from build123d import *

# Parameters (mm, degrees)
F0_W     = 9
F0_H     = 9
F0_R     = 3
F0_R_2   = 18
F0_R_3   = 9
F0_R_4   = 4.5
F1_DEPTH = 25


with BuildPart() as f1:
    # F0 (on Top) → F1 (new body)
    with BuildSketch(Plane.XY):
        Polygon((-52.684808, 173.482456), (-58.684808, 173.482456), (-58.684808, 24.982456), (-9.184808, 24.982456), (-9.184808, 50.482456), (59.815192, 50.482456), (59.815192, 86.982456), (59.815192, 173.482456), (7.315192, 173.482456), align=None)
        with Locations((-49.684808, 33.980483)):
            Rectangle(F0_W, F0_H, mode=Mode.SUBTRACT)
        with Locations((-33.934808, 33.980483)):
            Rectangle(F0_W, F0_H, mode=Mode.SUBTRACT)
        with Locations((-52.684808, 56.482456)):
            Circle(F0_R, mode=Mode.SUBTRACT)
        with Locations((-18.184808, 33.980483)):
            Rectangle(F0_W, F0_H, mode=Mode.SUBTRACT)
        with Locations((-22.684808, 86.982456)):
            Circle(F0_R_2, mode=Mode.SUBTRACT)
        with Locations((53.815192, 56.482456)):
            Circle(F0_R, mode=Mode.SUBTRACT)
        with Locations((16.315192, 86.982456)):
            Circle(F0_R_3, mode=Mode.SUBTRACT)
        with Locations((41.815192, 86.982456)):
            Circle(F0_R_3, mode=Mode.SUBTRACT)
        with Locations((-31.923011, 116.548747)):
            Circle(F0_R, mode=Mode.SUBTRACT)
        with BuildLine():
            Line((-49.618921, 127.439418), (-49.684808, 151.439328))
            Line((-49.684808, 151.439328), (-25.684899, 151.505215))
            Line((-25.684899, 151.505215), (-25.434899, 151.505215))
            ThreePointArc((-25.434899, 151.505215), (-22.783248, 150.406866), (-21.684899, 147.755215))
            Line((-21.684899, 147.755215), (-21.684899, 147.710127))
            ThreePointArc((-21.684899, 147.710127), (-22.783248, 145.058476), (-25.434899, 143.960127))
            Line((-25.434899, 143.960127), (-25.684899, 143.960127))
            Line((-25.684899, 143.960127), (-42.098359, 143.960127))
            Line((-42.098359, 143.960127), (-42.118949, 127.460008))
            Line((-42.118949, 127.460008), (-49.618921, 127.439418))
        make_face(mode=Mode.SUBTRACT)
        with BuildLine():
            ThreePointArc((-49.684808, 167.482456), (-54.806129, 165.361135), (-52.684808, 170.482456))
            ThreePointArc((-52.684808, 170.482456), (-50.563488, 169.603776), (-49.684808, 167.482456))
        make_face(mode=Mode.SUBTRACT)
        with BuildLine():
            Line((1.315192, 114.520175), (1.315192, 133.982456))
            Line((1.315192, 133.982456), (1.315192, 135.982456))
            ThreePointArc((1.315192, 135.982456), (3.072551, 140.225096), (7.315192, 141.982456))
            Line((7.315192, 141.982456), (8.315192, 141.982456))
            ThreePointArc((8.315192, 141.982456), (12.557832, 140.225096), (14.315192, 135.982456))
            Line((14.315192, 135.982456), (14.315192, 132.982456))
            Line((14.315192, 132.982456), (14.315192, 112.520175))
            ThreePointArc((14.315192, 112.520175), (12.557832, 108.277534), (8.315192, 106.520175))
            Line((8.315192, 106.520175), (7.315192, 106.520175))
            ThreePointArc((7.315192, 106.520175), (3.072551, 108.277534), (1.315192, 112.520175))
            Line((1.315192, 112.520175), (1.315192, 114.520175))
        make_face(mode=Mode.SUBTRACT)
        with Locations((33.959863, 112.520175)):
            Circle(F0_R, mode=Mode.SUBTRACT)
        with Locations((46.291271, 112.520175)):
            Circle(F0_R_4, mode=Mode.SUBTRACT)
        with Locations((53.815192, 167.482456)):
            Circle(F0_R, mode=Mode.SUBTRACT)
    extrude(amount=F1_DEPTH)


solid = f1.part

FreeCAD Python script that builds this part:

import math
import FreeCAD as App
import Part
import Sketcher
from FreeCAD import Vector
Q = App.Units.Quantity

doc = App.newDocument("Part")
body = doc.addObject("PartDesign::Body", "Body")

# Sketch on XY plane
sketch1 = body.newObject("Sketcher::SketchObject", "Sketch")
sketch1.AttachmentSupport = (doc.getObject("XY_Plane"), [""])
sketch1.MapMode = "FlatFace"
sketch1.addGeometry(Part.LineSegment(Vector(-58.684808, 173.482456, 0), Vector(-58.684808, 24.982456, 0)), False)
sketch1.addGeometry(Part.LineSegment(Vector(-58.684808, 24.982456, 0), Vector(-9.184808, 24.982456, 0)), False)
sketch1.addGeometry(Part.LineSegment(Vector(-9.184808, 24.982456, 0), Vector(-9.184808, 50.482456, 0)), False)
sketch1.addGeometry(Part.LineSegment(Vector(-9.184808, 50.482456, 0), Vector(59.815192, 50.482456, 0)), False)
sketch1.addGeometry(Part.LineSegment(Vector(59.815192, 50.482456, 0), Vector(59.815192, 173.482456, 0)), False)
sketch1.addGeometry(Part.LineSegment(Vector(59.815192, 173.482456, 0), Vector(-58.684808, 173.482456, 0)), False)
sketch1.addGeometry(Part.LineSegment(Vector(-45.184808, 29.480483, 0), Vector(-54.184808, 29.480483, 0)), False)
sketch1.addGeometry(Part.LineSegment(Vector(-54.184808, 29.480483, 0), Vector(-54.184808, 38.480483, 0)), False)
sketch1.addGeometry(Part.LineSegment(Vector(-54.184808, 38.480483, 0), Vector(-45.184808, 38.480483, 0)), False)
sketch1.addGeometry(Part.LineSegment(Vector(-45.184808, 38.480483, 0), Vector(-45.184808, 29.480483, 0)), False)
sketch1.addGeometry(Part.LineSegment(Vector(-29.434808, 29.480483, 0), Vector(-38.434808, 29.480483, 0)), False)
sketch1.addGeometry(Part.LineSegment(Vector(-38.434808, 29.480483, 0), Vector(-38.434808, 38.480483, 0)), False)
sketch1.addGeometry(Part.LineSegment(Vector(-38.434808, 38.480483, 0), Vector(-29.434808, 38.480483, 0)), False)
sketch1.addGeometry(Part.LineSegment(Vector(-29.434808, 38.480483, 0), Vector(-29.434808, 29.480483, 0)), False)
sketch1.addGeometry(Part.Circle(Vector(-52.684808, 56.482456, 0), Vector(0, 0, 1), 3), False)
sketch1.addGeometry(Part.LineSegment(Vector(-13.684808, 29.480483, 0), Vector(-22.684808, 29.480483, 0)), False)
sketch1.addGeometry(Part.LineSegment(Vector(-22.684808, 29.480483, 0), Vector(-22.684808, 38.480483, 0)), False)
sketch1.addGeometry(Part.LineSegment(Vector(-22.684808, 38.480483, 0), Vector(-13.684808, 38.480483, 0)), False)
sketch1.addGeometry(Part.LineSegment(Vector(-13.684808, 38.480483, 0), Vector(-13.684808, 29.480483, 0)), False)
sketch1.addGeometry(Part.Circle(Vector(-22.684808, 86.982456, 0), Vector(0, 0, 1), 18), False)
sketch1.addGeometry(Part.Circle(Vector(53.815192, 56.482456, 0), Vector(0, 0, 1), 3), False)
sketch1.addGeometry(Part.Circle(Vector(16.315192, 86.982456, 0), Vector(0, 0, 1), 9), False)
sketch1.addGeometry(Part.Circle(Vector(41.815192, 86.982456, 0), Vector(0, 0, 1), 9), False)
sketch1.addGeometry(Part.Circle(Vector(-31.923011, 116.548747, 0), Vector(0, 0, 1), 3), False)
sketch1.addGeometry(Part.LineSegment(Vector(-42.118949, 127.460008, 0), Vector(-49.618921, 127.439418, 0)), False)
sketch1.addGeometry(Part.LineSegment(Vector(-49.618921, 127.439418, 0), Vector(-49.684808, 151.439328, 0)), False)
sketch1.addGeometry(Part.LineSegment(Vector(-49.684808, 151.439328, 0), Vector(-25.684899, 151.505215, 0)), False)
sketch1.addGeometry(Part.LineSegment(Vector(-25.684899, 151.505215, 0), Vector(-25.434899, 151.505215, 0)), False)
sketch1.addGeometry(Part.ArcOfCircle(Part.Circle(Vector(-25.434897, 147.755217, 0), Vector(0, 0, 1), 3.749998), math.radians(-0.00003), math.radians(90.00003)), False)
sketch1.addGeometry(Part.LineSegment(Vector(-21.684899, 147.755215, 0), Vector(-21.684899, 147.710127, 0)), False)
sketch1.addGeometry(Part.ArcOfCircle(Part.Circle(Vector(-25.434897, 147.710125, 0), Vector(0, 0, 1), 3.749998), math.radians(-90.00003), math.radians(0.00003)), False)
sketch1.addGeometry(Part.LineSegment(Vector(-25.434899, 143.960127, 0), Vector(-42.098359, 143.960127, 0)), False)
sketch1.addGeometry(Part.LineSegment(Vector(-42.098359, 143.960127, 0), Vector(-42.118949, 127.460008, 0)), False)
sketch1.addGeometry(Part.ArcOfCircle(Part.Circle(Vector(-52.684809, 167.482455, 0), Vector(0, 0, 1), 3.000001), math.radians(0.000022), math.radians(89.999978)), False)
sketch1.addGeometry(Part.ArcOfCircle(Part.Circle(Vector(-52.684808, 167.482456, 0), Vector(0, 0, 1), 3), math.radians(89.999993), math.radians(360.000007)), False)
sketch1.addGeometry(Part.LineSegment(Vector(1.315192, 112.520175, 0), Vector(1.315192, 135.982456, 0)), False)
sketch1.addGeometry(Part.ArcOfCircle(Part.Circle(Vector(7.315193, 135.982455, 0), Vector(0, 0, 1), 6.000001), math.radians(90.000006), math.radians(179.999994)), False)
sketch1.addGeometry(Part.LineSegment(Vector(7.315192, 141.982456, 0), Vector(8.315192, 141.982456, 0)), False)
sketch1.addGeometry(Part.ArcOfCircle(Part.Circle(Vector(8.31519, 135.982454, 0), Vector(0, 0, 1), 6.000002), math.radians(0.000022), math.radians(89.999978)), False)
sketch1.addGeometry(Part.LineSegment(Vector(14.315192, 135.982456, 0), Vector(14.315192, 112.520175, 0)), False)
sketch1.addGeometry(Part.ArcOfCircle(Part.Circle(Vector(8.315191, 112.520176, 0), Vector(0, 0, 1), 6.000001), math.radians(-89.999994), math.radians(-0.000006)), False)
sketch1.addGeometry(Part.LineSegment(Vector(8.315192, 106.520175, 0), Vector(7.315192, 106.520175, 0)), False)
sketch1.addGeometry(Part.ArcOfCircle(Part.Circle(Vector(7.315191, 112.520174, 0), Vector(0, 0, 1), 5.999999), math.radians(179.99999), math.radians(270.00001)), False)
sketch1.addGeometry(Part.Circle(Vector(33.959863, 112.520175, 0), Vector(0, 0, 1), 3), False)
sketch1.addGeometry(Part.Circle(Vector(46.291271, 112.520175, 0), Vector(0, 0, 1), 4.5), False)
sketch1.addGeometry(Part.Circle(Vector(53.815192, 167.482456, 0), Vector(0, 0, 1), 3), False)
sketch1.addConstraint(Sketcher.Constraint("Coincident", 0, 2, 1, 1))
sketch1.addConstraint(Sketcher.Constraint("Coincident", 1, 2, 2, 1))
sketch1.addConstraint(Sketcher.Constraint("Coincident", 2, 2, 3, 1))
sketch1.addConstraint(Sketcher.Constraint("Coincident", 3, 2, 4, 1))
sketch1.addConstraint(Sketcher.Constraint("Coincident", 4, 2, 5, 1))
sketch1.addConstraint(Sketcher.Constraint("Coincident", 5, 2, 0, 1))
sketch1.addConstraint(Sketcher.Constraint("Coincident", 6, 2, 7, 1))
sketch1.addConstraint(Sketcher.Constraint("Coincident", 7, 2, 8, 1))
sketch1.addConstraint(Sketcher.Constraint("Coincident", 8, 2, 9, 1))
sketch1.addConstraint(Sketcher.Constraint("Coincident", 9, 2, 6, 1))
sketch1.addConstraint(Sketcher.Constraint("Coincident", 10, 2, 11, 1))
sketch1.addConstraint(Sketcher.Constraint("Coincident", 11, 2, 12, 1))
sketch1.addConstraint(Sketcher.Constraint("Coincident", 12, 2, 13, 1))
sketch1.addConstraint(Sketcher.Constraint("Coincident", 13, 2, 10, 1))
sketch1.addConstraint(Sketcher.Constraint("Coincident", 15, 2, 16, 1))
sketch1.addConstraint(Sketcher.Constraint("Coincident", 16, 2, 17, 1))
sketch1.addConstraint(Sketcher.Constraint("Coincident", 17, 2, 18, 1))
sketch1.addConstraint(Sketcher.Constraint("Coincident", 18, 2, 15, 1))
sketch1.addConstraint(Sketcher.Constraint("Coincident", 24, 2, 25, 1))
sketch1.addConstraint(Sketcher.Constraint("Coincident", 25, 2, 26, 1))
sketch1.addConstraint(Sketcher.Constraint("Coincident", 26, 2, 27, 1))
sketch1.addConstraint(Sketcher.Constraint("Tangent", 27, 2, 28, 2))
sketch1.addConstraint(Sketcher.Constraint("Tangent", 28, 1, 29, 1))
sketch1.addConstraint(Sketcher.Constraint("Tangent", 29, 2, 30, 2))
sketch1.addConstraint(Sketcher.Constraint("Tangent", 30, 1, 31, 1))
sketch1.addConstraint(Sketcher.Constraint("Coincident", 31, 2, 32, 1))
sketch1.addConstraint(Sketcher.Constraint("Coincident", 32, 2, 24, 1))
sketch1.addConstraint(Sketcher.Constraint("Tangent", 33, 1, 34, 2))
sketch1.addConstraint(Sketcher.Constraint("Coincident", 34, 1, 33, 2))
sketch1.addConstraint(Sketcher.Constraint("Tangent", 35, 2, 36, 2))
sketch1.addConstraint(Sketcher.Constraint("Tangent", 36, 1, 37, 1))
sketch1.addConstraint(Sketcher.Constraint("Tangent", 37, 2, 38, 2))
sketch1.addConstraint(Sketcher.Constraint("Tangent", 38, 1, 39, 1))
sketch1.addConstraint(Sketcher.Constraint("Tangent", 39, 2, 40, 2))
sketch1.addConstraint(Sketcher.Constraint("Tangent", 40, 1, 41, 1))
sketch1.addConstraint(Sketcher.Constraint("Tangent", 41, 2, 42, 2))
sketch1.addConstraint(Sketcher.Constraint("Tangent", 42, 1, 35, 1))
sketch1.addConstraint(Sketcher.Constraint("Vertical", 0))
sketch1.addConstraint(Sketcher.Constraint("Horizontal", 1))
sketch1.addConstraint(Sketcher.Constraint("Vertical", 2))
sketch1.addConstraint(Sketcher.Constraint("Horizontal", 3))
sketch1.addConstraint(Sketcher.Constraint("Vertical", 4))
sketch1.addConstraint(Sketcher.Constraint("Horizontal", 5))
sketch1.addConstraint(Sketcher.Constraint("Horizontal", 6))
sketch1.addConstraint(Sketcher.Constraint("Vertical", 7))
sketch1.addConstraint(Sketcher.Constraint("Horizontal", 8))
sketch1.addConstraint(Sketcher.Constraint("Vertical", 9))
sketch1.addConstraint(Sketcher.Constraint("Horizontal", 10))
sketch1.addConstraint(Sketcher.Constraint("Vertical", 11))
sketch1.addConstraint(Sketcher.Constraint("Horizontal", 12))
sketch1.addConstraint(Sketcher.Constraint("Vertical", 13))
sketch1.addConstraint(Sketcher.Constraint("Horizontal", 15))
sketch1.addConstraint(Sketcher.Constraint("Vertical", 16))
sketch1.addConstraint(Sketcher.Constraint("Horizontal", 17))
sketch1.addConstraint(Sketcher.Constraint("Vertical", 18))
sketch1.addConstraint(Sketcher.Constraint("Horizontal", 27))
sketch1.addConstraint(Sketcher.Constraint("Vertical", 29))
sketch1.addConstraint(Sketcher.Constraint("Horizontal", 31))
sketch1.addConstraint(Sketcher.Constraint("Vertical", 35))
sketch1.addConstraint(Sketcher.Constraint("Horizontal", 37))
sketch1.addConstraint(Sketcher.Constraint("Vertical", 39))
sketch1.addConstraint(Sketcher.Constraint("Horizontal", 41))
sketch1.addConstraint(Sketcher.Constraint("Equal", 14, 20))
sketch1.addConstraint(Sketcher.Constraint("Equal", 21, 22))
sketch1.addConstraint(Sketcher.Constraint("Equal", 20, 23))
sketch1.addConstraint(Sketcher.Constraint("Equal", 28, 30))
sketch1.addConstraint(Sketcher.Constraint("Equal", 23, 33))
sketch1.addConstraint(Sketcher.Constraint("Equal", 36, 38))
sketch1.addConstraint(Sketcher.Constraint("Equal", 38, 40))
sketch1.addConstraint(Sketcher.Constraint("Equal", 40, 42))
sketch1.addConstraint(Sketcher.Constraint("Equal", 34, 43))
sketch1.addConstraint(Sketcher.Constraint("Equal", 43, 45))
sketch1.addConstraint(Sketcher.Constraint("Perpendicular", 24, 25))
sketch1.addConstraint(Sketcher.Constraint("Perpendicular", 25, 26))
sketch1.addConstraint(Sketcher.Constraint("Horizontal", 14, 3, 20, 3))
sketch1.addConstraint(Sketcher.Constraint("Horizontal", 19, 3, 21, 3))
sketch1.addConstraint(Sketcher.Constraint("Horizontal", 21, 3, 22, 3))
sketch1.addConstraint(Sketcher.Constraint("Horizontal", 42, 3, 43, 3))
sketch1.addConstraint(Sketcher.Constraint("Horizontal", 43, 3, 44, 3))
sketch1.addConstraint(Sketcher.Constraint("Horizontal", 34, 3, 45, 3))
sketch1.addConstraint(Sketcher.Constraint("Horizontal", 9, 2, 10, 2))
sketch1.addConstraint(Sketcher.Constraint("Horizontal", 8, 2, 11, 2))
sketch1.addConstraint(Sketcher.Constraint("Horizontal", 13, 2, 15, 2))
sketch1.addConstraint(Sketcher.Constraint("Horizontal", 12, 2, 16, 2))
sketch1.addConstraint(Sketcher.Constraint("Horizontal", 45, 3, 33, 1))
sketch1.addConstraint(Sketcher.Constraint("Vertical", 14, 3, 33, 3))
sketch1.addConstraint(Sketcher.Constraint("Vertical", 20, 3, 45, 3))
sketch1.addConstraint(Sketcher.Constraint("Vertical", 19, 3, 15, 2))
sketch1.addConstraint(Sketcher.Constraint("Vertical", 25, 2, 33, 1))
sketch1.addConstraint(Sketcher.Constraint("Vertical", 33, 3, 34, 1))
sketch1.addConstraint(Sketcher.Constraint("Equal", 8, 10))
sketch1.addConstraint(Sketcher.Constraint("Equal", 12, 15))
sketch1.addConstraint(Sketcher.Constraint("Equal", 17, 7))
sketch1.addConstraint(Sketcher.Constraint("Equal", 25, 26))
sketch1.addConstraint(Sketcher.Constraint("Diameter", 14, Q("6 mm")))
sketch1.addConstraint(Sketcher.Constraint("Diameter", 19, Q("36 mm")))
sketch1.addConstraint(Sketcher.Constraint("Diameter", 21, Q("18 mm")))
sketch1.addConstraint(Sketcher.Constraint("Diameter", 44, Q("9 mm")))
sketch1.addConstraint(Sketcher.Constraint("Radius", 36, Q("6.000001 mm")))
sketch1.addConstraint(Sketcher.Constraint("DistanceX", 3, 1, 3, 2, Q("69 mm")))
sketch1.addConstraint(Sketcher.Constraint("DistanceX", 6, 2, 6, 1, Q("9 mm")))
sketch1.addConstraint(Sketcher.Constraint("DistanceX", 37, 1, 37, 2, Q("1 mm")))
sketch1.addConstraint(Sketcher.Constraint("DistanceY", 4, 1, 4, 2, Q("123 mm")))
sketch1.addConstraint(Sketcher.Constraint("Radius", 28, Q("3.749998 mm")))
sketch1.addConstraint(Sketcher.Constraint("Distance", 25, Q("24 mm")))
sketch1.addConstraint(Sketcher.Constraint("DistanceX", 1, 1, 1, 2, Q("49.5 mm")))
sketch1.addConstraint(Sketcher.Constraint("DistanceY", 0, 2, 0, 1, Q("148.5 mm")))
sketch1.addConstraint(Sketcher.Constraint("DistanceX", 14, 3, 19, 3, Q("30 mm")))
sketch1.addConstraint(Sketcher.Constraint("DistanceX", 19, 3, 21, 3, Q("39 mm")))
sketch1.addConstraint(Sketcher.Constraint("DistanceX", 22, 3, 20, 3, Q("12 mm")))
sketch1.addConstraint(Sketcher.Constraint("DistanceX", 36, 3, 21, 3, Q("8.999999 mm")))
sketch1.addConstraint(Sketcher.Constraint("DistanceY", 21, 3, 36, 3, Q("48.999999 mm")))
sketch1.addConstraint(Sketcher.Constraint("DistanceX", 0, 2, 14, 3, Q("6 mm")))
sketch1.addConstraint(Sketcher.Constraint("DistanceY", 0, 2, 19, 3, Q("62 mm")))
sketch1.addConstraint(Sketcher.Constraint("DistanceX", 1, 2, 20, 3, Q("63 mm")))
sketch1.addConstraint(Sketcher.Constraint("DistanceY", 2, 2, 14, 3, Q("6 mm")))
sketch1.addConstraint(Sketcher.Constraint("DistanceY", 45, 3, 4, 2, Q("6 mm")))
sketch1.addConstraint(Sketcher.Constraint("DistanceX", 6, 2, 1, 2, Q("45 mm")))
sketch1.addConstraint(Sketcher.Constraint("DistanceX", 26, 2, 28, 1, Q("4 mm")))
sketch1.addConstraint(Sketcher.Constraint("Distance", 24, Q("7.5 mm")))
sketch1.addConstraint(Sketcher.Constraint("DistanceX", 9, 2, 10, 2, Q("6.75 mm")))
sketch1.addConstraint(Sketcher.Constraint("DistanceX", 31, 2, 31, 1, Q("16.66346 mm")))
sketch1.addConstraint(Sketcher.Constraint("DistanceY", 35, 1, 35, 2, Q("23.462281 mm")))
sketch1.addConstraint(Sketcher.Constraint("DistanceX", 26, 2, -1, 1, Q("25.684899 mm")))
sketch1.addConstraint(Sketcher.Constraint("DistanceX", 33, 3, 23, 3, Q("20.761798 mm")))
sketch1.addConstraint(Sketcher.Constraint("DistanceY", 24, 2, 28, 3, Q("20.315799 mm")))
sketch1.addConstraint(Sketcher.Constraint("DistanceY", 31, 2, 25, 2, Q("7.479201 mm")))
sketch1.addConstraint(Sketcher.Constraint("DistanceX", -1, 1, 44, 3, Q("46.291271 mm")))
sketch1.addConstraint(Sketcher.Constraint("DistanceY", -1, 1, 24, 2, Q("127.439418 mm")))
sketch1.addConstraint(Sketcher.Constraint("DistanceY", 19, 3, 23, 3, Q("29.566291 mm")))
sketch1.addConstraint(Sketcher.Constraint("DistanceY", 23, 3, 28, 3, Q("31.20647 mm")))
sketch1.addConstraint(Sketcher.Constraint("DistanceX", 40, 3, 43, 3, Q("25.644672 mm")))
sketch1.addConstraint(Sketcher.Constraint("DistanceY", -1, 1, 6, 2, Q("29.480483 mm")))
pad1 = body.newObject("PartDesign::Pad", "Pad")
pad1.Profile = sketch1
pad1.Length = 25

doc.recompute()
